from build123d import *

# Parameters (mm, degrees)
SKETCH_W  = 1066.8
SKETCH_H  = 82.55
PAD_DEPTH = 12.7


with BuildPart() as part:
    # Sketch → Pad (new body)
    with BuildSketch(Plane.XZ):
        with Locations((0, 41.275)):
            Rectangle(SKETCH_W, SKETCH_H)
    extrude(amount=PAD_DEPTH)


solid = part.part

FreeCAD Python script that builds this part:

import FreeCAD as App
import Part
import Sketcher
from FreeCAD import Vector
Q = App.Units.Quantity

doc = App.newDocument("Part")
body = doc.addObject("PartDesign::Body", "Body")

# Sketch on XZ plane
sketch1 = doc.addObject("Sketcher::SketchObject", "Sketch")
body.addObject(sketch1)
sketch1.AttachmentSupport = (doc.XZ_Plane, [""])
sketch1.MapMode = "FlatFace"
sketch1.addGeometry([
    Part.LineSegment(Vector(-533.4, 82.55, 0), Vector(-533.4, 0, 0)),
    Part.LineSegment(Vector(-533.4, 0, 0), Vector(533.4, 0, 0)),
    Part.LineSegment(Vector(533.4, 0, 0), Vector(533.4, 82.55, 0)),
    Part.LineSegment(Vector(533.4, 82.55, 0), Vector(-533.4, 82.55, 0)),
], False)
sketch1.addConstraint([
    Sketcher.Constraint("Coincident", 0, 2, 1, 1),
    Sketcher.Constraint("Coincident", 1, 2, 2, 1),
    Sketcher.Constraint("Coincident", 2, 2, 3, 1),
    Sketcher.Constraint("Coincident", 3, 2, 0, 1),
    Sketcher.Constraint("Vertical", 0),
    Sketcher.Constraint("Horizontal", 1),
    Sketcher.Constraint("Vertical", 2),
    Sketcher.Constraint("Horizontal", 3),
    Sketcher.Constraint("Symmetric", 0, 2, 1, 2, -1, 1),
    Sketcher.Constraint("DistanceX", 1, 1, 1, 2, Q("42 in")),
    Sketcher.Constraint("DistanceY", 0, 2, 0, 1, Q("3.25 in")),
])
pad1 = doc.addObject("PartDesign::Pad", "Pad")
body.addObject(pad1)
pad1.Profile = sketch1
pad1.Length = Q("0.5 in")

doc.recompute()
